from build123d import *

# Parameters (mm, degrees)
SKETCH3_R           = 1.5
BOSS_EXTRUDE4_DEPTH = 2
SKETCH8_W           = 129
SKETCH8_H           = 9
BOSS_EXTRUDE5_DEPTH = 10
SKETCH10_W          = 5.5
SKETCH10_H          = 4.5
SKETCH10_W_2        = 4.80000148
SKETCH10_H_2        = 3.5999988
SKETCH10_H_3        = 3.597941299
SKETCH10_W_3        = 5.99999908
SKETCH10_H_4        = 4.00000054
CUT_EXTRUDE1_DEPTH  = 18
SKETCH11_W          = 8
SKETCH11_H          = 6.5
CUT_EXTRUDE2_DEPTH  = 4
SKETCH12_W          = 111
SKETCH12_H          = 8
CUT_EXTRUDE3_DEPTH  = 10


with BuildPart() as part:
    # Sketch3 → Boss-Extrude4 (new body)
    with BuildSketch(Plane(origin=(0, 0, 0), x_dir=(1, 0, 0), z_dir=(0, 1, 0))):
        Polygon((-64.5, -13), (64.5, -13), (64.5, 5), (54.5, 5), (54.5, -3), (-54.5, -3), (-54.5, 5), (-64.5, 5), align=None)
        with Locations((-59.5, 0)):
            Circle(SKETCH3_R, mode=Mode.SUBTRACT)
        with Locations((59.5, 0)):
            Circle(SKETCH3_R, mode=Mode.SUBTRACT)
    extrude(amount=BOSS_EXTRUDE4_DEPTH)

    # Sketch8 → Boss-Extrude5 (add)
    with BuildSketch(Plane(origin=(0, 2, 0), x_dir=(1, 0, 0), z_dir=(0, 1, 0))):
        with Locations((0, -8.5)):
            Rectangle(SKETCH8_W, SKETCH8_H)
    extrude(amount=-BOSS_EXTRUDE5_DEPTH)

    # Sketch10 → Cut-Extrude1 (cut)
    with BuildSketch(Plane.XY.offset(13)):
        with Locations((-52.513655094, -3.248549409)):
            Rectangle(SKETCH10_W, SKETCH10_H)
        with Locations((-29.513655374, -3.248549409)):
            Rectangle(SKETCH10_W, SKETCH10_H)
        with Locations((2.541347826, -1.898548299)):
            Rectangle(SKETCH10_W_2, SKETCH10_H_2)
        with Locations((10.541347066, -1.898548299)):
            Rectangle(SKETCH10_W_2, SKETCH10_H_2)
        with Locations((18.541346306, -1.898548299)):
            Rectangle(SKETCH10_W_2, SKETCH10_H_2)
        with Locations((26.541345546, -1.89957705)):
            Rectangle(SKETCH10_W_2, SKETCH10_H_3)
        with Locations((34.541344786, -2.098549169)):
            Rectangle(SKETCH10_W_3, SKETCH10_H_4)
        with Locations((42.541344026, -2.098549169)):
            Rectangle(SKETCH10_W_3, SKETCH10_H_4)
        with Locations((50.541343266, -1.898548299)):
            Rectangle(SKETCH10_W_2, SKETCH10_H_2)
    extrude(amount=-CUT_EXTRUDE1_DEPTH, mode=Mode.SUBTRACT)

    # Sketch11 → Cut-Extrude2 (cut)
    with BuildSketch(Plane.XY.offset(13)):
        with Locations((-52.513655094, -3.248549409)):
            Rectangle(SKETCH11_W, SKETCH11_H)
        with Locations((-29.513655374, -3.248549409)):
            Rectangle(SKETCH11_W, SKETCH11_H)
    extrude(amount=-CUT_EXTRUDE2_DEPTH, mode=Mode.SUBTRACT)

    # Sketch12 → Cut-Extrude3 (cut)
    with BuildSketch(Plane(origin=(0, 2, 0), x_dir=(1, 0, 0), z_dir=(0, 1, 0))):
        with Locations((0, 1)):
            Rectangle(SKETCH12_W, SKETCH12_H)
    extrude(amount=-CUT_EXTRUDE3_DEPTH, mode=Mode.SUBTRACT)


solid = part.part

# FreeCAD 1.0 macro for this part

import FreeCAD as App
import Part
import Sketcher
from FreeCAD import Vector
Q = App.Units.Quantity


def add_polygon(sketch, points):
    """Adds a closed chain of lines whose ends are joined by coincident constraints."""
    first, n = sketch.GeometryCount, len(points)
    for a, b in zip(points, points[1:] + points[:1]):
        sketch.addGeometry(Part.LineSegment(App.Vector(*a, 0), App.Vector(*b, 0)), False)
    for i in range(n):
        sketch.addConstraint(Sketcher.Constraint("Coincident", first + i, 2, first + (i + 1) % n, 1))

doc = App.newDocument("Part")
params = doc.addObject("Spreadsheet::Sheet", "Params")
for row, (alias, value) in enumerate([
    ("sketch1_diameter", "3 mm"),
    ("sketch1_width", "129 mm"),
    ("sketch1_width2", "10 mm"),
    ("sketch1_height", "18 mm"),
    ("sketch1_height2", "8 mm"),
    ("pad1_length", "2 mm"),
    ("sketch2_width", "129 mm"),
    ("sketch2_height", "9 mm"),
    ("pad2_length", "10 mm"),
    ("sketch3_width", "5.999999 mm"),
    ("sketch3_height", "4.000001 mm"),
    ("sketch3_width2", "5.5 mm"),
    ("sketch3_width3", "4.800001 mm"),
    ("sketch3_height2", "4.5 mm"),
    ("pocket1_length", "18 mm"),
    ("sketch4_width", "8 mm"),
    ("sketch4_height", "6.5 mm"),
    ("pocket2_length", "4 mm"),
    ("sketch5_width", "111 mm"),
    ("sketch5_height", "8 mm"),
    ("pocket3_length", "10 mm"),
], start=1):
    params.set(f"A{row}", alias)
    params.set(f"B{row}", "=" + value)
    params.setAlias(f"B{row}", alias)

body = doc.addObject("PartDesign::Body", "Body")

sketch1 = body.newObject("Sketcher::SketchObject", "Sketch")
sketch1.AttachmentSupport = (doc.getObject("XZ_Plane"), [""])
sketch1.MapMode = "FlatFace"
add_polygon(sketch1, [(-64.5, 13), (64.5, 13), (64.5, -5), (54.5, -5), (54.5, 3), (-54.5, 3), (-54.5, -5), (-64.5, -5)])
sketch1.addGeometry(Part.Circle(Vector(-59.5, 0, 0), Vector(0, 0, 1), 1.5), False)
sketch1.addGeometry(Part.Circle(Vector(59.5, 0, 0), Vector(0, 0, 1), 1.5), False)
sketch1.addConstraint(Sketcher.Constraint("Horizontal", 0))
sketch1.addConstraint(Sketcher.Constraint("Vertical", 1))
sketch1.addConstraint(Sketcher.Constraint("Horizontal", 2))
sketch1.addConstraint(Sketcher.Constraint("Vertical", 3))
sketch1.addConstraint(Sketcher.Constraint("Horizontal", 4))
sketch1.addConstraint(Sketcher.Constraint("Vertical", 5))
sketch1.addConstraint(Sketcher.Constraint("Horizontal", 6))
sketch1.addConstraint(Sketcher.Constraint("Vertical", 7))
sketch1.addConstraint(Sketcher.Constraint("Equal", 8, 9))
sketch1.addConstraint(Sketcher.Constraint("Symmetric", 8, 3, 9, 3, -1, 1))
sketch1.addConstraint(Sketcher.Constraint("Symmetric", 2, 2, 5, 2, -2))
sketch1.addConstraint(Sketcher.Constraint("PointOnObject", 8, 3, -1))
sketch1.addConstraint(Sketcher.Constraint("Equal", 2, 6))
sketch1.addConstraint(Sketcher.Constraint("Diameter", 8, Q("3 mm")))
sketch1.addConstraint(Sketcher.Constraint("DistanceX", 0, 1, 0, 2, Q("129 mm")))
sketch1.addConstraint(Sketcher.Constraint("DistanceX", 2, 2, 2, 1, Q("10 mm")))
sketch1.addConstraint(Sketcher.Constraint("DistanceY", 1, 2, 1, 1, Q("18 mm")))
sketch1.addConstraint(Sketcher.Constraint("DistanceY", 3, 1, 3, 2, Q("8 mm")))
sketch1.addConstraint(Sketcher.Constraint("DistanceY", -1, 1, 0, 2, Q("13 mm")))
sketch1.addConstraint(Sketcher.Constraint("DistanceX", 8, 3, 9, 3, Q("119 mm")))
sketch1.setExpression("Constraints[21]", "Params.sketch1_diameter")
sketch1.setExpression("Constraints[22]", "Params.sketch1_width")
sketch1.setExpression("Constraints[23]", "Params.sketch1_width2")
sketch1.setExpression("Constraints[24]", "Params.sketch1_height")
sketch1.setExpression("Constraints[25]", "Params.sketch1_height2")
pad1 = body.newObject("PartDesign::Pad", "Pad")
pad1.Profile = sketch1
pad1.setExpression("Length", "Params.pad1_length")
pad1.Reversed = True

sketch2 = body.newObject("Sketcher::SketchObject", "Sketch001")
sketch2.AttachmentSupport = (doc.getObject("XZ_Plane"), [""])
sketch2.MapMode = "FlatFace"
sketch2.AttachmentOffset = App.Placement(Vector(0, 0, -2), App.Rotation())
add_polygon(sketch2, [(-64, 4), (-64, 13), (64, 13), (64, 4)])
sketch2.addConstraint(Sketcher.Constraint("Vertical", 0))
sketch2.addConstraint(Sketcher.Constraint("Horizontal", 1))
sketch2.addConstraint(Sketcher.Constraint("Vertical", 2))
sketch2.addConstraint(Sketcher.Constraint("Horizontal", 3))
sketch2.addConstraint(Sketcher.Constraint("DistanceX", 1, 1, 1, 2, Q("129 mm")))
sketch2.addConstraint(Sketcher.Constraint("DistanceY", 0, 1, 0, 2, Q("9 mm")))
sketch2.addConstraint(Sketcher.Constraint("DistanceY", -1, 1, 0, 2, Q("13 mm")))
sketch2.addConstraint(Sketcher.Constraint("DistanceX", 0, 2, -1, 1, Q("64.5 mm")))
sketch2.setExpression("Constraints[8]", "Params.sketch2_width")
sketch2.setExpression("Constraints[9]", "Params.sketch2_height")
pad2 = body.newObject("PartDesign::Pad", "Pad001")
pad2.Profile = sketch2
pad2.setExpression("Length", "Params.pad2_length")

sketch3 = body.newObject("Sketcher::SketchObject", "Sketch002")
sketch3.AttachmentSupport = (doc.getObject("XY_Plane"), [""])
sketch3.MapMode = "FlatFace"
sketch3.AttachmentOffset = App.Placement(Vector(0, 0, 13), App.Rotation())
add_polygon(sketch3, [(-55.3, -1), (-55.3, -5.5), (-49.8, -5.5), (-49.8, -1)])
add_polygon(sketch3, [(-32.3, -1), (-32.3, -5.5), (-26.8, -5.5), (-26.8, -1)])
add_polygon(sketch3, [(0.1, -0.1), (0.1, -3.7), (4.9, -3.7), (4.9, -0.1)])
add_polygon(sketch3, [(8.1, -0.1), (8.1, -3.7), (12.9, -3.7), (12.9, -0.1)])
add_polygon(sketch3, [(16.1, -0.1), (16.1, -3.7), (20.9, -3.7), (20.9, -0.1)])
add_polygon(sketch3, [(24.1, -0.1), (24.1, -3.7), (28.9, -3.7), (28.9, -0.1)])
add_polygon(sketch3, [(31.5, -0.1), (31.5, -4.1), (37.5, -4.1), (37.5, -0.1)])
add_polygon(sketch3, [(39.5, -0.1), (39.5, -4.1), (45.5, -4.1), (45.5, -0.1)])
add_polygon(sketch3, [(48.1, -0.1), (48.1, -3.7), (52.9, -3.7), (52.9, -0.1)])
sketch3.addConstraint(Sketcher.Constraint("Vertical", 0))
sketch3.addConstraint(Sketcher.Constraint("Horizontal", 1))
sketch3.addConstraint(Sketcher.Constraint("Vertical", 2))
sketch3.addConstraint(Sketcher.Constraint("Horizontal", 3))
sketch3.addConstraint(Sketcher.Constraint("Vertical", 4))
sketch3.addConstraint(Sketcher.Constraint("Horizontal", 5))
sketch3.addConstraint(Sketcher.Constraint("Vertical", 6))
sketch3.addConstraint(Sketcher.Constraint("Horizontal", 7))
sketch3.addConstraint(Sketcher.Constraint("Vertical", 8))
sketch3.addConstraint(Sketcher.Constraint("Horizontal", 9))
sketch3.addConstraint(Sketcher.Constraint("Vertical", 10))
sketch3.addConstraint(Sketcher.Constraint("Horizontal", 11))
sketch3.addConstraint(Sketcher.Constraint("Vertical", 12))
sketch3.addConstraint(Sketcher.Constraint("Horizontal", 13))
sketch3.addConstraint(Sketcher.Constraint("Vertical", 14))
sketch3.addConstraint(Sketcher.Constraint("Horizontal", 15))
sketch3.addConstraint(Sketcher.Constraint("Vertical", 16))
sketch3.addConstraint(Sketcher.Constraint("Horizontal", 17))
sketch3.addConstraint(Sketcher.Constraint("Vertical", 18))
sketch3.addConstraint(Sketcher.Constraint("Horizontal", 19))
sketch3.addConstraint(Sketcher.Constraint("Vertical", 20))
sketch3.addConstraint(Sketcher.Constraint("Horizontal", 21))
sketch3.addConstraint(Sketcher.Constraint("Vertical", 22))
sketch3.addConstraint(Sketcher.Constraint("Horizontal", 23))
sketch3.addConstraint(Sketcher.Constraint("Vertical", 24))
sketch3.addConstraint(Sketcher.Constraint("Horizontal", 25))
sketch3.addConstraint(Sketcher.Constraint("Vertical", 26))
sketch3.addConstraint(Sketcher.Constraint("Horizontal", 27))
sketch3.addConstraint(Sketcher.Constraint("Vertical", 28))
sketch3.addConstraint(Sketcher.Constraint("Horizontal", 29))
sketch3.addConstraint(Sketcher.Constraint("Vertical", 30))
sketch3.addConstraint(Sketcher.Constraint("Horizontal", 31))
sketch3.addConstraint(Sketcher.Constraint("Vertical", 32))
sketch3.addConstraint(Sketcher.Constraint("Horizontal", 33))
sketch3.addConstraint(Sketcher.Constraint("Vertical", 34))
sketch3.addConstraint(Sketcher.Constraint("Horizontal", 35))
sketch3.addConstraint(Sketcher.Constraint("Horizontal", 1, 2, 4, 2))
sketch3.addConstraint(Sketcher.Constraint("Horizontal", 3, 2, 6, 2))
sketch3.addConstraint(Sketcher.Constraint("Horizontal", 9, 2, 12, 2))
sketch3.addConstraint(Sketcher.Constraint("Horizontal", 11, 2, 14, 2))
sketch3.addConstraint(Sketcher.Constraint("Horizontal", 13, 2, 16, 2))
sketch3.addConstraint(Sketcher.Constraint("Horizontal", 15, 2, 18, 2))
sketch3.addConstraint(Sketcher.Constraint("Horizontal", 17, 2, 20, 2))
sketch3.addConstraint(Sketcher.Constraint("Horizontal", 19, 2, 26, 2))
sketch3.addConstraint(Sketcher.Constraint("Horizontal", 25, 2, 28, 2))
sketch3.addConstraint(Sketcher.Constraint("Horizontal", 27, 2, 30, 2))
sketch3.addConstraint(Sketcher.Constraint("Horizontal", 21, 2, 32, 2))
sketch3.addConstraint(Sketcher.Constraint("Horizontal", 31, 2, 34, 2))
sketch3.addConstraint(Sketcher.Constraint("Equal", 3, 5))
sketch3.addConstraint(Sketcher.Constraint("Equal", 11, 13))
sketch3.addConstraint(Sketcher.Constraint("Equal", 15, 17))
sketch3.addConstraint(Sketcher.Constraint("Equal", 19, 21))
sketch3.addConstraint(Sketcher.Constraint("Equal", 27, 29))
sketch3.addConstraint(Sketcher.Constraint("Equal", 23, 33))
sketch3.addConstraint(Sketcher.Constraint("DistanceX", 25, 1, 25, 2, Q("5.999999 mm")))
sketch3.addConstraint(Sketcher.Constraint("DistanceY", 24, 2, 24, 1, Q("4.000001 mm")))
sketch3.addConstraint(Sketcher.Constraint("DistanceX", 1, 1, 1, 2, Q("5.5 mm")))
sketch3.addConstraint(Sketcher.Constraint("DistanceX", 9, 1, 9, 2, Q("4.800001 mm")))
sketch3.addConstraint(Sketcher.Constraint("DistanceY", 0, 2, 0, 1, Q("4.5 mm")))
sketch3.addConstraint(Sketcher.Constraint("DistanceY", 8, 2, 8, 1, Q("3.599999 mm")))
sketch3.addConstraint(Sketcher.Constraint("DistanceX", 0, 2, 4, 2, Q("23 mm")))
sketch3.addConstraint(Sketcher.Constraint("DistanceX", 8, 2, 12, 2, Q("7.999999 mm")))
sketch3.addConstraint(Sketcher.Constraint("DistanceX", 12, 2, 16, 2, Q("7.999999 mm")))
sketch3.addConstraint(Sketcher.Constraint("DistanceX", 16, 2, 20, 2, Q("7.999999 mm")))
sketch3.addConstraint(Sketcher.Constraint("DistanceX", 25, 2, 28, 2, Q("2 mm")))
sketch3.addConstraint(Sketcher.Constraint("DistanceY", 5, 2, 8, 2, Q("1.800002 mm")))
sketch3.addConstraint(Sketcher.Constraint("DistanceX", 21, 2, 24, 2, Q("2.599999 mm")))
sketch3.addConstraint(Sketcher.Constraint("DistanceX", 29, 2, 32, 2, Q("2.599999 mm")))
sketch3.addConstraint(Sketcher.Constraint("DistanceX", 5, 2, 12, 2, Q("34.905002 mm")))
sketch3.addConstraint(Sketcher.Constraint("DistanceY", 20, 2, 20, 1, Q("3.597941 mm")))
sketch3.addConstraint(Sketcher.Constraint("DistanceY", 0, 2, -1, 1, Q("5.498549 mm")))
sketch3.addConstraint(Sketcher.Constraint("DistanceX", -1, 1, 9, 2, Q("4.941349 mm")))
sketch3.setExpression("Constraints[90]", "Params.sketch3_width")
sketch3.setExpression("Constraints[91]", "Params.sketch3_height")
sketch3.setExpression("Constraints[92]", "Params.sketch3_width2")
sketch3.setExpression("Constraints[93]", "Params.sketch3_width3")
sketch3.setExpression("Constraints[94]", "Params.sketch3_height2")
pocket1 = body.newObject("PartDesign::Pocket", "Pocket")
pocket1.Profile = sketch3
pocket1.setExpression("Length", "Params.pocket1_length")

sketch4 = body.newObject("Sketcher::SketchObject", "Sketch003")
sketch4.AttachmentSupport = (doc.getObject("XY_Plane"), [""])
sketch4.MapMode = "FlatFace"
sketch4.AttachmentOffset = App.Placement(Vector(0, 0, 13), App.Rotation())
add_polygon(sketch4, [(-57, 0), (-57, -6), (-49, -6), (-49, 0)])
add_polygon(sketch4, [(-34, 0), (-34, -6), (-26, -6), (-26, 0)])
sketch4.addConstraint(Sketcher.Constraint("Vertical", 0))
sketch4.addConstraint(Sketcher.Constraint("Horizontal", 1))
sketch4.addConstraint(Sketcher.Constraint("Vertical", 2))
sketch4.addConstraint(Sketcher.Constraint("Horizontal", 3))
sketch4.addConstraint(Sketcher.Constraint("Vertical", 4))
sketch4.addConstraint(Sketcher.Constraint("Horizontal", 5))
sketch4.addConstraint(Sketcher.Constraint("Vertical", 6))
sketch4.addConstraint(Sketcher.Constraint("Horizontal", 7))
sketch4.addConstraint(Sketcher.Constraint("Horizontal", 1, 2, 4, 2))
sketch4.addConstraint(Sketcher.Constraint("Horizontal", 3, 2, 6, 2))
sketch4.addConstraint(Sketcher.Constraint("Equal", 3, 5))
sketch4.addConstraint(Sketcher.Constraint("DistanceX", 1, 1, 1, 2, Q("8 mm")))
sketch4.addConstraint(Sketcher.Constraint("DistanceY", 0, 2, 0, 1, Q("6.5 mm")))
sketch4.addConstraint(Sketcher.Constraint("DistanceX", 1, 2, 4, 2, Q("15 mm")))
sketch4.addConstraint(Sketcher.Constraint("DistanceY", 0, 2, -1, 1, Q("6.498549 mm")))
sketch4.addConstraint(Sketcher.Constraint("DistanceX", 0, 2, -1, 1, Q("56.513655 mm")))
sketch4.setExpression("Constraints[19]", "Params.sketch4_width")
sketch4.setExpression("Constraints[20]", "Params.sketch4_height")
pocket2 = body.newObject("PartDesign::Pocket", "Pocket001")
pocket2.Profile = sketch4
pocket2.setExpression("Length", "Params.pocket2_length")

sketch5 = body.newObject("Sketcher::SketchObject", "Sketch004")
sketch5.AttachmentSupport = (doc.getObject("XZ_Plane"), [""])
sketch5.MapMode = "FlatFace"
sketch5.AttachmentOffset = App.Placement(Vector(0, 0, -2), App.Rotation())
add_polygon(sketch5, [(-56, -5), (-56, 3), (56, 3), (56, -5)])
sketch5.addConstraint(Sketcher.Constraint("Vertical", 0))
sketch5.addConstraint(Sketcher.Constraint("Horizontal", 1))
sketch5.addConstraint(Sketcher.Constraint("Vertical", 2))
sketch5.addConstraint(Sketcher.Constraint("Horizontal", 3))
sketch5.addConstraint(Sketcher.Constraint("DistanceX", 1, 1, 1, 2, Q("111 mm")))
sketch5.addConstraint(Sketcher.Constraint("DistanceY", 0, 1, 0, 2, Q("8 mm")))
sketch5.addConstraint(Sketcher.Constraint("DistanceY", -1, 1, 0, 2, Q("3 mm")))
sketch5.addConstraint(Sketcher.Constraint("DistanceX", 0, 2, -1, 1, Q("55.5 mm")))
sketch5.setExpression("Constraints[8]", "Params.sketch5_width")
sketch5.setExpression("Constraints[9]", "Params.sketch5_height")
pocket3 = body.newObject("PartDesign::Pocket", "Pocket002")
pocket3.Profile = sketch5
pocket3.setExpression("Length", "Params.pocket3_length")
pocket3.Reversed = True

doc.recompute()
